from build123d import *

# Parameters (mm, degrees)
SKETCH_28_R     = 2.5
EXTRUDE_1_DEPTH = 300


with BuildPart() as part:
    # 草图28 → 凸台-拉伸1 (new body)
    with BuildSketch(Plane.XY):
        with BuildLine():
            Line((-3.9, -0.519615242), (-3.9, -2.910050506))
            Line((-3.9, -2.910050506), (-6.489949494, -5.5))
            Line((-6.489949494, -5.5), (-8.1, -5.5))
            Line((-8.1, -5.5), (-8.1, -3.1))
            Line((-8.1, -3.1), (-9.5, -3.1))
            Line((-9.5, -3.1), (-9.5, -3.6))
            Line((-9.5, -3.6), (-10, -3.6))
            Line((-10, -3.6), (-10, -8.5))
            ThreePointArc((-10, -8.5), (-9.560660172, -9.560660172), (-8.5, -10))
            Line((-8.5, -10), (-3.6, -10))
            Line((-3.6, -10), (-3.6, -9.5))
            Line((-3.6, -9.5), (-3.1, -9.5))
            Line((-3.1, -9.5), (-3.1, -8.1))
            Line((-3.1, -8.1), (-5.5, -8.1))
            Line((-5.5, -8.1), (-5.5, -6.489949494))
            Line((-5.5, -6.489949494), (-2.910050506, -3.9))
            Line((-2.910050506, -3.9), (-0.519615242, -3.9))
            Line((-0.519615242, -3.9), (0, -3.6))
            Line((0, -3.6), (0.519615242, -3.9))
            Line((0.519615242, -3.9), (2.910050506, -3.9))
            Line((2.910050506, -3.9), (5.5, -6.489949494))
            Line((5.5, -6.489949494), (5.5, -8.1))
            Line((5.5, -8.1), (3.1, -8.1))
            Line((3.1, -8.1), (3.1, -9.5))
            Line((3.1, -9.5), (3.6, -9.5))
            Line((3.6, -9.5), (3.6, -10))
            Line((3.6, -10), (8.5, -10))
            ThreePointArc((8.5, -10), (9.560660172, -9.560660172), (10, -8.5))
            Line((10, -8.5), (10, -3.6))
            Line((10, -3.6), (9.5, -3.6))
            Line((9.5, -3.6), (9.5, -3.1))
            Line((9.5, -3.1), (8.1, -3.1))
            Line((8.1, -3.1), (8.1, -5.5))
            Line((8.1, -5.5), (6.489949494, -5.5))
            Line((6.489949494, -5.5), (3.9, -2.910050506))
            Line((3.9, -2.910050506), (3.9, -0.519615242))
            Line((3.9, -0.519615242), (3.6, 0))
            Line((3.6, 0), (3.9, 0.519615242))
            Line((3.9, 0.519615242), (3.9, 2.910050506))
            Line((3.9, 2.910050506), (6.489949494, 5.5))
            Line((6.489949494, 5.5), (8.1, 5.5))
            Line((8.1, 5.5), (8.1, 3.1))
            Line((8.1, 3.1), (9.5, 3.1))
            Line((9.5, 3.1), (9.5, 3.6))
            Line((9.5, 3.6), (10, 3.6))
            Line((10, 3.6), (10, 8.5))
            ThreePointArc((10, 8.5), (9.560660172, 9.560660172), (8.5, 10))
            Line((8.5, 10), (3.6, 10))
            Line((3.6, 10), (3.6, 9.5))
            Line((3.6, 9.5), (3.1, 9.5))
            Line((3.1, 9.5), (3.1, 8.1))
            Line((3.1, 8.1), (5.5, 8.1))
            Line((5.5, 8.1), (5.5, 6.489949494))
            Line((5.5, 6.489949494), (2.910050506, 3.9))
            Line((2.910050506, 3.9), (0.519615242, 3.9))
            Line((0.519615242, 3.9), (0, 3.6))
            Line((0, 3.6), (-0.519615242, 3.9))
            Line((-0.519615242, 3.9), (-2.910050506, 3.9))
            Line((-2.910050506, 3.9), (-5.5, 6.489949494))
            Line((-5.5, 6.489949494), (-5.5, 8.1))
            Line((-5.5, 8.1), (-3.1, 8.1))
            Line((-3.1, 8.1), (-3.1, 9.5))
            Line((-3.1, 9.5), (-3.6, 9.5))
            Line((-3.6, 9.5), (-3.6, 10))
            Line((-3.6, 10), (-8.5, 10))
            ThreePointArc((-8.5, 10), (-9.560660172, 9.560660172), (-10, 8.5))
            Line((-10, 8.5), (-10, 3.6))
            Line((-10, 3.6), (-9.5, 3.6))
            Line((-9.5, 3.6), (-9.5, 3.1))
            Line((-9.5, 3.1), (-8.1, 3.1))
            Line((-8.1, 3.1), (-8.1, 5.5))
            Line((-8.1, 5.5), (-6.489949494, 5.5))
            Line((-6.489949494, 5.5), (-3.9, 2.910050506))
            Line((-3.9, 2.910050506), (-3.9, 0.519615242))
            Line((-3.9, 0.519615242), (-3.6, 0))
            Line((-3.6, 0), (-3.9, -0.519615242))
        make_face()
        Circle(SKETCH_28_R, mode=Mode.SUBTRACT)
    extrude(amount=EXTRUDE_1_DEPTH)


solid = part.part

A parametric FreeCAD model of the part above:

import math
import FreeCAD as App
import Part
import Sketcher
Q = App.Units.Quantity

doc = App.newDocument("Part")
body = doc.addObject("PartDesign::Body", "Body")

# Sketch on XY plane
sketch1 = body.newObject("Sketcher::SketchObject", "Sketch")
sketch1.AttachmentSupport = (doc.getObject("XY_Plane"), [""])
sketch1.MapMode = "FlatFace"
sketch1.addGeometry([
    Part.LineSegment(App.Vector(-3.9, -0.519615, 0), App.Vector(-3.9, -2.910051, 0)),  # 0
    Part.LineSegment(App.Vector(-3.9, -2.910051, 0), App.Vector(-6.489949, -5.5, 0)),  # 1
    Part.LineSegment(App.Vector(-6.489949, -5.5, 0), App.Vector(-8.1, -5.5, 0)),  # 2
    Part.LineSegment(App.Vector(-8.1, -5.5, 0), App.Vector(-8.1, -3.1, 0)),  # 3
    Part.LineSegment(App.Vector(-8.1, -3.1, 0), App.Vector(-9.5, -3.1, 0)),  # 4
    Part.LineSegment(App.Vector(-9.5, -3.1, 0), App.Vector(-9.5, -3.6, 0)),  # 5
    Part.LineSegment(App.Vector(-9.5, -3.6, 0), App.Vector(-10, -3.6, 0)),  # 6
    Part.LineSegment(App.Vector(-10, -3.6, 0), App.Vector(-10, -8.5, 0)),  # 7
    Part.ArcOfCircle(Part.Circle(App.Vector(-8.5, -8.5, 0), App.Vector(0, 0, 1), 1.5), math.radians(180), math.radians(270)),  # 8
    Part.LineSegment(App.Vector(-8.5, -10, 0), App.Vector(-3.6, -10, 0)),  # 9
    Part.LineSegment(App.Vector(-3.6, -10, 0), App.Vector(-3.6, -9.5, 0)),  # 10
    Part.LineSegment(App.Vector(-3.6, -9.5, 0), App.Vector(-3.1, -9.5, 0)),  # 11
    Part.LineSegment(App.Vector(-3.1, -9.5, 0), App.Vector(-3.1, -8.1, 0)),  # 12
    Part.LineSegment(App.Vector(-3.1, -8.1, 0), App.Vector(-5.5, -8.1, 0)),  # 13
    Part.LineSegment(App.Vector(-5.5, -8.1, 0), App.Vector(-5.5, -6.489949, 0)),  # 14
    Part.LineSegment(App.Vector(-5.5, -6.489949, 0), App.Vector(-2.910051, -3.9, 0)),  # 15
    Part.LineSegment(App.Vector(-2.910051, -3.9, 0), App.Vector(-0.519615, -3.9, 0)),  # 16
    Part.LineSegment(App.Vector(-0.519615, -3.9, 0), App.Vector(0, -3.6, 0)),  # 17
    Part.LineSegment(App.Vector(0, -3.6, 0), App.Vector(0.519615, -3.9, 0)),  # 18
    Part.LineSegment(App.Vector(0.519615, -3.9, 0), App.Vector(2.910051, -3.9, 0)),  # 19
    Part.LineSegment(App.Vector(2.910051, -3.9, 0), App.Vector(5.5, -6.489949, 0)),  # 20
    Part.LineSegment(App.Vector(5.5, -6.489949, 0), App.Vector(5.5, -8.1, 0)),  # 21
    Part.LineSegment(App.Vector(5.5, -8.1, 0), App.Vector(3.1, -8.1, 0)),  # 22
    Part.LineSegment(App.Vector(3.1, -8.1, 0), App.Vector(3.1, -9.5, 0)),  # 23
    Part.LineSegment(App.Vector(3.1, -9.5, 0), App.Vector(3.6, -9.5, 0)),  # 24
    Part.LineSegment(App.Vector(3.6, -9.5, 0), App.Vector(3.6, -10, 0)),  # 25
    Part.LineSegment(App.Vector(3.6, -10, 0), App.Vector(8.5, -10, 0)),  # 26
    Part.ArcOfCircle(Part.Circle(App.Vector(8.5, -8.5, 0), App.Vector(0, 0, 1), 1.5), math.radians(-90), math.radians(0)),  # 27
    Part.LineSegment(App.Vector(10, -8.5, 0), App.Vector(10, -3.6, 0)),  # 28
    Part.LineSegment(App.Vector(10, -3.6, 0), App.Vector(9.5, -3.6, 0)),  # 29
    Part.LineSegment(App.Vector(9.5, -3.6, 0), App.Vector(9.5, -3.1, 0)),  # 30
    Part.LineSegment(App.Vector(9.5, -3.1, 0), App.Vector(8.1, -3.1, 0)),  # 31
    Part.LineSegment(App.Vector(8.1, -3.1, 0), App.Vector(8.1, -5.5, 0)),  # 32
    Part.LineSegment(App.Vector(8.1, -5.5, 0), App.Vector(6.489949, -5.5, 0)),  # 33
    Part.LineSegment(App.Vector(6.489949, -5.5, 0), App.Vector(3.9, -2.910051, 0)),  # 34
    Part.LineSegment(App.Vector(3.9, -2.910051, 0), App.Vector(3.9, -0.519615, 0)),  # 35
    Part.LineSegment(App.Vector(3.9, -0.519615, 0), App.Vector(3.6, 0, 0)),  # 36
    Part.LineSegment(App.Vector(3.6, 0, 0), App.Vector(3.9, 0.519615, 0)),  # 37
    Part.LineSegment(App.Vector(3.9, 0.519615, 0), App.Vector(3.9, 2.910051, 0)),  # 38
    Part.LineSegment(App.Vector(3.9, 2.910051, 0), App.Vector(6.489949, 5.5, 0)),  # 39
    Part.LineSegment(App.Vector(6.489949, 5.5, 0), App.Vector(8.1, 5.5, 0)),  # 40
    Part.LineSegment(App.Vector(8.1, 5.5, 0), App.Vector(8.1, 3.1, 0)),  # 41
    Part.LineSegment(App.Vector(8.1, 3.1, 0), App.Vector(9.5, 3.1, 0)),  # 42
    Part.LineSegment(App.Vector(9.5, 3.1, 0), App.Vector(9.5, 3.6, 0)),  # 43
    Part.LineSegment(App.Vector(9.5, 3.6, 0), App.Vector(10, 3.6, 0)),  # 44
    Part.LineSegment(App.Vector(10, 3.6, 0), App.Vector(10, 8.5, 0)),  # 45
    Part.ArcOfCircle(Part.Circle(App.Vector(8.5, 8.5, 0), App.Vector(0, 0, 1), 1.5), math.radians(0), math.radians(90)),  # 46
    Part.LineSegment(App.Vector(8.5, 10, 0), App.Vector(3.6, 10, 0)),  # 47
    Part.LineSegment(App.Vector(3.6, 10, 0), App.Vector(3.6, 9.5, 0)),  # 48
    Part.LineSegment(App.Vector(3.6, 9.5, 0), App.Vector(3.1, 9.5, 0)),  # 49
    Part.LineSegment(App.Vector(3.1, 9.5, 0), App.Vector(3.1, 8.1, 0)),  # 50
    Part.LineSegment(App.Vector(3.1, 8.1, 0), App.Vector(5.5, 8.1, 0)),  # 51
    Part.LineSegment(App.Vector(5.5, 8.1, 0), App.Vector(5.5, 6.489949, 0)),  # 52
    Part.LineSegment(App.Vector(5.5, 6.489949, 0), App.Vector(2.910051, 3.9, 0)),  # 53
    Part.LineSegment(App.Vector(2.910051, 3.9, 0), App.Vector(0.519615, 3.9, 0)),  # 54
    Part.LineSegment(App.Vector(0.519615, 3.9, 0), App.Vector(0, 3.6, 0)),  # 55
    Part.LineSegment(App.Vector(0, 3.6, 0), App.Vector(-0.519615, 3.9, 0)),  # 56
    Part.LineSegment(App.Vector(-0.519615, 3.9, 0), App.Vector(-2.910051, 3.9, 0)),  # 57
    Part.LineSegment(App.Vector(-2.910051, 3.9, 0), App.Vector(-5.5, 6.489949, 0)),  # 58
    Part.LineSegment(App.Vector(-5.5, 6.489949, 0), App.Vector(-5.5, 8.1, 0)),  # 59
    Part.LineSegment(App.Vector(-5.5, 8.1, 0), App.Vector(-3.1, 8.1, 0)),  # 60
    Part.LineSegment(App.Vector(-3.1, 8.1, 0), App.Vector(-3.1, 9.5, 0)),  # 61
    Part.LineSegment(App.Vector(-3.1, 9.5, 0), App.Vector(-3.6, 9.5, 0)),  # 62
    Part.LineSegment(App.Vector(-3.6, 9.5, 0), App.Vector(-3.6, 10, 0)),  # 63
    Part.LineSegment(App.Vector(-3.6, 10, 0), App.Vector(-8.5, 10, 0)),  # 64
    Part.ArcOfCircle(Part.Circle(App.Vector(-8.5, 8.5, 0), App.Vector(0, 0, 1), 1.5), math.radians(90), math.radians(180)),  # 65
    Part.LineSegment(App.Vector(-10, 8.5, 0), App.Vector(-10, 3.6, 0)),  # 66
    Part.LineSegment(App.Vector(-10, 3.6, 0), App.Vector(-9.5, 3.6, 0)),  # 67
    Part.LineSegment(App.Vector(-9.5, 3.6, 0), App.Vector(-9.5, 3.1, 0)),  # 68
    Part.LineSegment(App.Vector(-9.5, 3.1, 0), App.Vector(-8.1, 3.1, 0)),  # 69
    Part.LineSegment(App.Vector(-8.1, 3.1, 0), App.Vector(-8.1, 5.5, 0)),  # 70
    Part.LineSegment(App.Vector(-8.1, 5.5, 0), App.Vector(-6.489949, 5.5, 0)),  # 71
    Part.LineSegment(App.Vector(-6.489949, 5.5, 0), App.Vector(-3.9, 2.910051, 0)),  # 72
    Part.LineSegment(App.Vector(-3.9, 2.910051, 0), App.Vector(-3.9, 0.519615, 0)),  # 73
    Part.LineSegment(App.Vector(-3.9, 0.519615, 0), App.Vector(-3.6, 0, 0)),  # 74
    Part.LineSegment(App.Vector(-3.6, 0, 0), App.Vector(-3.9, -0.519615, 0)),  # 75
    Part.Circle(App.Vector(0, 0, 0), App.Vector(0, 0, 1), 2.5),  # 76
], False)
sketch1.addConstraint([
    Sketcher.Constraint("Coincident", 0, 2, 1, 1),
    Sketcher.Constraint("Coincident", 1, 2, 2, 1),
    Sketcher.Constraint("Coincident", 2, 2, 3, 1),
    Sketcher.Constraint("Coincident", 3, 2, 4, 1),
    Sketcher.Constraint("Coincident", 4, 2, 5, 1),
    Sketcher.Constraint("Coincident", 5, 2, 6, 1),
    Sketcher.Constraint("Coincident", 6, 2, 7, 1),
    Sketcher.Constraint("Tangent", 7, 2, 8, 1),
    Sketcher.Constraint("Tangent", 8, 2, 9, 1),
    Sketcher.Constraint("Coincident", 9, 2, 10, 1),
    Sketcher.Constraint("Coincident", 10, 2, 11, 1),
    Sketcher.Constraint("Coincident", 11, 2, 12, 1),
    Sketcher.Constraint("Coincident", 12, 2, 13, 1),
    Sketcher.Constraint("Coincident", 13, 2, 14, 1),
    Sketcher.Constraint("Coincident", 14, 2, 15, 1),
    Sketcher.Constraint("Coincident", 15, 2, 16, 1),
    Sketcher.Constraint("Coincident", 16, 2, 17, 1),
    Sketcher.Constraint("Coincident", 17, 2, 18, 1),
    Sketcher.Constraint("Coincident", 18, 2, 19, 1),
    Sketcher.Constraint("Coincident", 19, 2, 20, 1),
    Sketcher.Constraint("Coincident", 20, 2, 21, 1),
    Sketcher.Constraint("Coincident", 21, 2, 22, 1),
    Sketcher.Constraint("Coincident", 22, 2, 23, 1),
    Sketcher.Constraint("Coincident", 23, 2, 24, 1),
    Sketcher.Constraint("Coincident", 24, 2, 25, 1),
    Sketcher.Constraint("Coincident", 25, 2, 26, 1),
    Sketcher.Constraint("Tangent", 26, 2, 27, 1),
    Sketcher.Constraint("Tangent", 27, 2, 28, 1),
    Sketcher.Constraint("Coincident", 28, 2, 29, 1),
    Sketcher.Constraint("Coincident", 29, 2, 30, 1),
    Sketcher.Constraint("Coincident", 30, 2, 31, 1),
    Sketcher.Constraint("Coincident", 31, 2, 32, 1),
    Sketcher.Constraint("Coincident", 32, 2, 33, 1),
    Sketcher.Constraint("Coincident", 33, 2, 34, 1),
    Sketcher.Constraint("Coincident", 34, 2, 35, 1),
    Sketcher.Constraint("Coincident", 35, 2, 36, 1),
    Sketcher.Constraint("Coincident", 36, 2, 37, 1),
    Sketcher.Constraint("Coincident", 37, 2, 38, 1),
    Sketcher.Constraint("Coincident", 38, 2, 39, 1),
    Sketcher.Constraint("Coincident", 39, 2, 40, 1),
    Sketcher.Constraint("Coincident", 40, 2, 41, 1),
    Sketcher.Constraint("Coincident", 41, 2, 42, 1),
    Sketcher.Constraint("Coincident", 42, 2, 43, 1),
    Sketcher.Constraint("Coincident", 43, 2, 44, 1),
    Sketcher.Constraint("Coincident", 44, 2, 45, 1),
    Sketcher.Constraint("Tangent", 45, 2, 46, 1),
    Sketcher.Constraint("Tangent", 46, 2, 47, 1),
    Sketcher.Constraint("Coincident", 47, 2, 48, 1),
    Sketcher.Constraint("Coincident", 48, 2, 49, 1),
    Sketcher.Constraint("Coincident", 49, 2, 50, 1),
    Sketcher.Constraint("Coincident", 50, 2, 51, 1),
    Sketcher.Constraint("Coincident", 51, 2, 52, 1),
    Sketcher.Constraint("Coincident", 52, 2, 53, 1),
    Sketcher.Constraint("Coincident", 53, 2, 54, 1),
    Sketcher.Constraint("Coincident", 54, 2, 55, 1),
    Sketcher.Constraint("Coincident", 55, 2, 56, 1),
    Sketcher.Constraint("Coincident", 56, 2, 57, 1),
    Sketcher.Constraint("Coincident", 57, 2, 58, 1),
    Sketcher.Constraint("Coincident", 58, 2, 59, 1),
    Sketcher.Constraint("Coincident", 59, 2, 60, 1),
    Sketcher.Constraint("Coincident", 60, 2, 61, 1),
    Sketcher.Constraint("Coincident", 61, 2, 62, 1),
    Sketcher.Constraint("Coincident", 62, 2, 63, 1),
    Sketcher.Constraint("Coincident", 63, 2, 64, 1),
    Sketcher.Constraint("Tangent", 64, 2, 65, 1),
    Sketcher.Constraint("Tangent", 65, 2, 66, 1),
    Sketcher.Constraint("Coincident", 66, 2, 67, 1),
    Sketcher.Constraint("Coincident", 67, 2, 68, 1),
    Sketcher.Constraint("Coincident", 68, 2, 69, 1),
    Sketcher.Constraint("Coincident", 69, 2, 70, 1),
    Sketcher.Constraint("Coincident", 70, 2, 71, 1),
    Sketcher.Constraint("Coincident", 71, 2, 72, 1),
    Sketcher.Constraint("Coincident", 72, 2, 73, 1),
    Sketcher.Constraint("Coincident", 73, 2, 74, 1),
    Sketcher.Constraint("Coincident", 74, 2, 75, 1),
    Sketcher.Constraint("Coincident", 75, 2, 0, 1),
    Sketcher.Constraint("Vertical", 0),
    Sketcher.Constraint("Horizontal", 2),
    Sketcher.Constraint("Vertical", 3),
    Sketcher.Constraint("Horizontal", 4),
    Sketcher.Constraint("Vertical", 5),
    Sketcher.Constraint("Horizontal", 6),
    Sketcher.Constraint("Vertical", 7),
    Sketcher.Constraint("Horizontal", 9),
    Sketcher.Constraint("Vertical", 10),
    Sketcher.Constraint("Horizontal", 11),
    Sketcher.Constraint("Vertical", 12),
    Sketcher.Constraint("Horizontal", 13),
    Sketcher.Constraint("Vertical", 14),
    Sketcher.Constraint("Horizontal", 16),
    Sketcher.Constraint("Horizontal", 19),
    Sketcher.Constraint("Vertical", 21),
    Sketcher.Constraint("Horizontal", 22),
    Sketcher.Constraint("Vertical", 23),
    Sketcher.Constraint("Horizontal", 24),
    Sketcher.Constraint("Vertical", 25),
    Sketcher.Constraint("Horizontal", 26),
    Sketcher.Constraint("Vertical", 28),
    Sketcher.Constraint("Horizontal", 29),
    Sketcher.Constraint("Vertical", 30),
    Sketcher.Constraint("Horizontal", 31),
    Sketcher.Constraint("Vertical", 32),
    Sketcher.Constraint("Horizontal", 33),
    Sketcher.Constraint("Vertical", 35),
    Sketcher.Constraint("Vertical", 38),
    Sketcher.Constraint("Horizontal", 40),
    Sketcher.Constraint("Vertical", 41),
    Sketcher.Constraint("Horizontal", 42),
    Sketcher.Constraint("Vertical", 43),
    Sketcher.Constraint("Horizontal", 44),
    Sketcher.Constraint("Vertical", 45),
    Sketcher.Constraint("Horizontal", 47),
    Sketcher.Constraint("Vertical", 48),
    Sketcher.Constraint("Horizontal", 49),
    Sketcher.Constraint("Vertical", 50),
    Sketcher.Constraint("Horizontal", 51),
    Sketcher.Constraint("Vertical", 52),
    Sketcher.Constraint("Horizontal", 54),
    Sketcher.Constraint("Horizontal", 57),
    Sketcher.Constraint("Vertical", 59),
    Sketcher.Constraint("Horizontal", 60),
    Sketcher.Constraint("Vertical", 61),
    Sketcher.Constraint("Horizontal", 62),
    Sketcher.Constraint("Vertical", 63),
    Sketcher.Constraint("Horizontal", 64),
    Sketcher.Constraint("Vertical", 66),
    Sketcher.Constraint("Horizontal", 67),
    Sketcher.Constraint("Vertical", 68),
    Sketcher.Constraint("Horizontal", 69),
    Sketcher.Constraint("Vertical", 70),
    Sketcher.Constraint("Horizontal", 71),
    Sketcher.Constraint("Vertical", 73),
    Sketcher.Constraint("Coincident", 76, 3, -1, 1),
    Sketcher.Constraint("Equal", 8, 27),
    Sketcher.Constraint("Equal", 27, 46),
    Sketcher.Constraint("Equal", 46, 65),
    Sketcher.Constraint("Symmetric", 8, 3, 46, 3, -1, 1),
    Sketcher.Constraint("Symmetric", 27, 3, 65, 3, -1, 1),
    Sketcher.Constraint("Symmetric", 0, 2, 38, 2, -1, 1),
    Sketcher.Constraint("Symmetric", 1, 2, 39, 2, -1, 1),
    Sketcher.Constraint("Symmetric", 3, 2, 41, 2, -1, 1),
    Sketcher.Constraint("Symmetric", 5, 2, 43, 2, -1, 1),
    Sketcher.Constraint("Symmetric", 10, 2, 48, 2, -1, 1),
    Sketcher.Constraint("Symmetric", 12, 2, 50, 2, -1, 1),
    Sketcher.Constraint("Symmetric", 14, 2, 52, 2, -1, 1),
    Sketcher.Constraint("Symmetric", 15, 2, 53, 2, -1, 1),
    Sketcher.Constraint("Symmetric", 17, 2, 55, 2, -1, 1),
    Sketcher.Constraint("Symmetric", 18, 2, 56, 2, -1, 1),
    Sketcher.Constraint("Symmetric", 20, 2, 58, 2, -1, 1),
    Sketcher.Constraint("Symmetric", 22, 2, 60, 2, -1, 1),
    Sketcher.Constraint("Symmetric", 24, 2, 62, 2, -1, 1),
    Sketcher.Constraint("Symmetric", 29, 2, 67, 2, -1, 1),
    Sketcher.Constraint("Symmetric", 31, 2, 69, 2, -1, 1),
    Sketcher.Constraint("Symmetric", 33, 2, 71, 2, -1, 1),
    Sketcher.Constraint("Symmetric", 34, 2, 72, 2, -1, 1),
    Sketcher.Constraint("Symmetric", 36, 2, 74, 2, -1, 1),
    Sketcher.Constraint("Symmetric", 8, 3, 27, 3, -2),
    Sketcher.Constraint("Symmetric", 16, 2, 18, 2, -2),
    Sketcher.Constraint("Symmetric", 14, 2, 20, 2, -2),
    Sketcher.Constraint("Symmetric", 12, 2, 22, 2, -2),
    Sketcher.Constraint("Symmetric", 10, 2, 24, 2, -2),
    Sketcher.Constraint("Symmetric", 5, 2, 29, 2, -2),
    Sketcher.Constraint("Symmetric", 3, 2, 31, 2, -2),
    Sketcher.Constraint("Symmetric", 1, 2, 33, 2, -2),
    Sketcher.Constraint("Symmetric", 0, 2, 34, 2, -2),
    Sketcher.Constraint("PointOnObject", 17, 2, -2),
    Sketcher.Constraint("PointOnObject", 36, 2, -1),
    Sketcher.Constraint("Parallel", 1, 15),
    Sketcher.Constraint("Perpendicular", 15, 20),
    Sketcher.Constraint("Parallel", 20, 34),
    Sketcher.Constraint("Perpendicular", 17, 36),
    Sketcher.Constraint("Perpendicular", 18, 37),
    Sketcher.Constraint("Perpendicular", 36, 55),
    Sketcher.Constraint("Perpendicular", 53, 58),
    Sketcher.Constraint("Perpendicular", 55, 74),
    Sketcher.Constraint("Perpendicular", 56, 75),
    Sketcher.Constraint("Horizontal", 6, 2, 17, 2),
    Sketcher.Constraint("Vertical", 25, 2, 36, 2),
    Sketcher.Constraint("Equal", 6, 11),
    Sketcher.Constraint("Equal", 57, 0),
    Sketcher.Constraint("Equal", 60, 3),
    Sketcher.Constraint("Equal", 67, 5),
    Sketcher.Constraint("Equal", 64, 7),
    Sketcher.Constraint("Equal", 5, 10),
    Sketcher.Constraint("Equal", 69, 12),
    Sketcher.Constraint("Equal", 71, 14),
    Sketcher.Constraint("Equal", 1, 15),
    Sketcher.Constraint("Diameter", 76, 5.0),
    Sketcher.Constraint("Radius", 8, 1.5),
    Sketcher.Constraint("Angle", 17, Q("30 deg")),
    Sketcher.Constraint("DistanceX", 4, 2, 4, 1, 1.4),
    Sketcher.Constraint("DistanceX", 6, 2, 6, 1, 0.5),
    Sketcher.Constraint("DistanceX", 9, 1, 9, 2, 4.9),
    Sketcher.Constraint("DistanceX", 13, 2, 13, 1, 2.4),
    Sketcher.Constraint("DistanceX", 6, 2, -1, 1, 10.0),
    Sketcher.Constraint("Distance", 17, 0.6),
    Sketcher.Constraint("DistanceX", 2, 2, 2, 1, 1.610051),
])
pad1 = body.newObject("PartDesign::Pad", "Pad")
pad1.Profile = sketch1
pad1.Length = 300

doc.recompute()
